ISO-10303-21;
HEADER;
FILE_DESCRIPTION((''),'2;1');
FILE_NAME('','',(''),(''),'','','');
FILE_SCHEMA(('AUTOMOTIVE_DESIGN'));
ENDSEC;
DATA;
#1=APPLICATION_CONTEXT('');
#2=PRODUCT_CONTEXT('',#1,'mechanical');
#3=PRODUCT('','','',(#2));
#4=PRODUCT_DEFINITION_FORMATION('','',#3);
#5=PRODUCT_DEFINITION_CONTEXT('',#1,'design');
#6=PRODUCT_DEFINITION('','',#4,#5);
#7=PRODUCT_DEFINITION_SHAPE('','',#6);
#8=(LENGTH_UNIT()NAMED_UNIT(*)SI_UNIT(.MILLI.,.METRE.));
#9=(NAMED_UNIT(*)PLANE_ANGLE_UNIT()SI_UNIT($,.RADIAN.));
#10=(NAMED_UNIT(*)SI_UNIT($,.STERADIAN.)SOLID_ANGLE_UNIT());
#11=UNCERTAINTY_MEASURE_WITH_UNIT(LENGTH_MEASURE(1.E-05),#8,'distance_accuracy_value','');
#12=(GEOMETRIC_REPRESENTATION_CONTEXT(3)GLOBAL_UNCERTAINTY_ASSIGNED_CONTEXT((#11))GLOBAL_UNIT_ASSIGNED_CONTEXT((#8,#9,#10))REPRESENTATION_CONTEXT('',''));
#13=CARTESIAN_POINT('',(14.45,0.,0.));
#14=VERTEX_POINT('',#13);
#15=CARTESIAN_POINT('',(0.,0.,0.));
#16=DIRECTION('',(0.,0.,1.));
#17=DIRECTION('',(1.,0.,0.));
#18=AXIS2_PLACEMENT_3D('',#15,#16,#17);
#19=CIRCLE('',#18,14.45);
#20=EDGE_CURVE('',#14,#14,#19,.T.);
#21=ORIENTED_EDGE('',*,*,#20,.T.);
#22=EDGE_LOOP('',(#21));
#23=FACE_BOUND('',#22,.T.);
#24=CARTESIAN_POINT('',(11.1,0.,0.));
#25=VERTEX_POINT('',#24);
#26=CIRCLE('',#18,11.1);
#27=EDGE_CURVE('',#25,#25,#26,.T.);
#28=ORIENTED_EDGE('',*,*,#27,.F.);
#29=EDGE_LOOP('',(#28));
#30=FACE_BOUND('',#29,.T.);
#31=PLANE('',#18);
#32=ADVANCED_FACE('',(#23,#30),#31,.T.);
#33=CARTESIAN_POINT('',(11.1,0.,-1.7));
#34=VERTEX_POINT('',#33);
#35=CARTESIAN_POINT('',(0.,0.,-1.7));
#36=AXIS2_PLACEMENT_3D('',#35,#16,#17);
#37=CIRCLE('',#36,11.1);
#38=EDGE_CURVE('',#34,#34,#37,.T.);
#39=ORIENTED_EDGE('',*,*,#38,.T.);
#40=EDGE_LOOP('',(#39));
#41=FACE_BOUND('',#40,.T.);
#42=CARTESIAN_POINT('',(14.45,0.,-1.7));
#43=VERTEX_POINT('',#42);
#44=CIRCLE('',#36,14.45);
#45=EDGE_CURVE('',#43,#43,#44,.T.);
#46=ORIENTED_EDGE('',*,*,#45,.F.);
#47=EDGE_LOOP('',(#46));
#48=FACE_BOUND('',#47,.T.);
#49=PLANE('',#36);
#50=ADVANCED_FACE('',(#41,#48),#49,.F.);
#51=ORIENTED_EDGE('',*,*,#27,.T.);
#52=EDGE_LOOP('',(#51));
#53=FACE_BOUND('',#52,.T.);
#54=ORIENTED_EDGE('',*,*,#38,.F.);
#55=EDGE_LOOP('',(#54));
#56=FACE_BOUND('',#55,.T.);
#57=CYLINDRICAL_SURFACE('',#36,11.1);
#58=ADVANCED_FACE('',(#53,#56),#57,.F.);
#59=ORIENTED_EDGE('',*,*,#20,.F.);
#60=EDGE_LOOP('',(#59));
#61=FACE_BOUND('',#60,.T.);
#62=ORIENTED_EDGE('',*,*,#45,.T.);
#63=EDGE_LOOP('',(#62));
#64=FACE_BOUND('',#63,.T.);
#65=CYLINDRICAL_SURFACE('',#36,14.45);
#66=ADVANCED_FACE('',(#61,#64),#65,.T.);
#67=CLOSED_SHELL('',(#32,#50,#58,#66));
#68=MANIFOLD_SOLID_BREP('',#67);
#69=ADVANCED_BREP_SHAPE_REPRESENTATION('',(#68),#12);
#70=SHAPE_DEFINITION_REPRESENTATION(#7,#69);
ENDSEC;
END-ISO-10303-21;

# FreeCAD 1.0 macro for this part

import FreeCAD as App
import Part
import Sketcher
Q = App.Units.Quantity

doc = App.newDocument("Part")
body = doc.addObject("PartDesign::Body", "Body")

# Sketch on XY plane
sketch1 = body.newObject("Sketcher::SketchObject", "Sketch")
sketch1.AttachmentSupport = (doc.getObject("XY_Plane"), [""])
sketch1.MapMode = "FlatFace"
sketch1.addGeometry(Part.Circle(App.Vector(0, 0, 0), App.Vector(0, 0, 1), 14), False)
sketch1.addGeometry(Part.Circle(App.Vector(0, 0, 0), App.Vector(0, 0, 1), 11), False)
sketch1.addConstraint(Sketcher.Constraint("Coincident", 0, 3, -1, 1))
sketch1.addConstraint(Sketcher.Constraint("Coincident", 1, 3, -1, 1))
sketch1.addConstraint(Sketcher.Constraint("Diameter", 0, Q("28.9 mm")))
sketch1.addConstraint(Sketcher.Constraint("Diameter", 1, Q("22.2 mm")))
pad1 = body.newObject("PartDesign::Pad", "Pad")
pad1.Profile = sketch1
pad1.Length = 1.7
pad1.Reversed = True

doc.recompute()
